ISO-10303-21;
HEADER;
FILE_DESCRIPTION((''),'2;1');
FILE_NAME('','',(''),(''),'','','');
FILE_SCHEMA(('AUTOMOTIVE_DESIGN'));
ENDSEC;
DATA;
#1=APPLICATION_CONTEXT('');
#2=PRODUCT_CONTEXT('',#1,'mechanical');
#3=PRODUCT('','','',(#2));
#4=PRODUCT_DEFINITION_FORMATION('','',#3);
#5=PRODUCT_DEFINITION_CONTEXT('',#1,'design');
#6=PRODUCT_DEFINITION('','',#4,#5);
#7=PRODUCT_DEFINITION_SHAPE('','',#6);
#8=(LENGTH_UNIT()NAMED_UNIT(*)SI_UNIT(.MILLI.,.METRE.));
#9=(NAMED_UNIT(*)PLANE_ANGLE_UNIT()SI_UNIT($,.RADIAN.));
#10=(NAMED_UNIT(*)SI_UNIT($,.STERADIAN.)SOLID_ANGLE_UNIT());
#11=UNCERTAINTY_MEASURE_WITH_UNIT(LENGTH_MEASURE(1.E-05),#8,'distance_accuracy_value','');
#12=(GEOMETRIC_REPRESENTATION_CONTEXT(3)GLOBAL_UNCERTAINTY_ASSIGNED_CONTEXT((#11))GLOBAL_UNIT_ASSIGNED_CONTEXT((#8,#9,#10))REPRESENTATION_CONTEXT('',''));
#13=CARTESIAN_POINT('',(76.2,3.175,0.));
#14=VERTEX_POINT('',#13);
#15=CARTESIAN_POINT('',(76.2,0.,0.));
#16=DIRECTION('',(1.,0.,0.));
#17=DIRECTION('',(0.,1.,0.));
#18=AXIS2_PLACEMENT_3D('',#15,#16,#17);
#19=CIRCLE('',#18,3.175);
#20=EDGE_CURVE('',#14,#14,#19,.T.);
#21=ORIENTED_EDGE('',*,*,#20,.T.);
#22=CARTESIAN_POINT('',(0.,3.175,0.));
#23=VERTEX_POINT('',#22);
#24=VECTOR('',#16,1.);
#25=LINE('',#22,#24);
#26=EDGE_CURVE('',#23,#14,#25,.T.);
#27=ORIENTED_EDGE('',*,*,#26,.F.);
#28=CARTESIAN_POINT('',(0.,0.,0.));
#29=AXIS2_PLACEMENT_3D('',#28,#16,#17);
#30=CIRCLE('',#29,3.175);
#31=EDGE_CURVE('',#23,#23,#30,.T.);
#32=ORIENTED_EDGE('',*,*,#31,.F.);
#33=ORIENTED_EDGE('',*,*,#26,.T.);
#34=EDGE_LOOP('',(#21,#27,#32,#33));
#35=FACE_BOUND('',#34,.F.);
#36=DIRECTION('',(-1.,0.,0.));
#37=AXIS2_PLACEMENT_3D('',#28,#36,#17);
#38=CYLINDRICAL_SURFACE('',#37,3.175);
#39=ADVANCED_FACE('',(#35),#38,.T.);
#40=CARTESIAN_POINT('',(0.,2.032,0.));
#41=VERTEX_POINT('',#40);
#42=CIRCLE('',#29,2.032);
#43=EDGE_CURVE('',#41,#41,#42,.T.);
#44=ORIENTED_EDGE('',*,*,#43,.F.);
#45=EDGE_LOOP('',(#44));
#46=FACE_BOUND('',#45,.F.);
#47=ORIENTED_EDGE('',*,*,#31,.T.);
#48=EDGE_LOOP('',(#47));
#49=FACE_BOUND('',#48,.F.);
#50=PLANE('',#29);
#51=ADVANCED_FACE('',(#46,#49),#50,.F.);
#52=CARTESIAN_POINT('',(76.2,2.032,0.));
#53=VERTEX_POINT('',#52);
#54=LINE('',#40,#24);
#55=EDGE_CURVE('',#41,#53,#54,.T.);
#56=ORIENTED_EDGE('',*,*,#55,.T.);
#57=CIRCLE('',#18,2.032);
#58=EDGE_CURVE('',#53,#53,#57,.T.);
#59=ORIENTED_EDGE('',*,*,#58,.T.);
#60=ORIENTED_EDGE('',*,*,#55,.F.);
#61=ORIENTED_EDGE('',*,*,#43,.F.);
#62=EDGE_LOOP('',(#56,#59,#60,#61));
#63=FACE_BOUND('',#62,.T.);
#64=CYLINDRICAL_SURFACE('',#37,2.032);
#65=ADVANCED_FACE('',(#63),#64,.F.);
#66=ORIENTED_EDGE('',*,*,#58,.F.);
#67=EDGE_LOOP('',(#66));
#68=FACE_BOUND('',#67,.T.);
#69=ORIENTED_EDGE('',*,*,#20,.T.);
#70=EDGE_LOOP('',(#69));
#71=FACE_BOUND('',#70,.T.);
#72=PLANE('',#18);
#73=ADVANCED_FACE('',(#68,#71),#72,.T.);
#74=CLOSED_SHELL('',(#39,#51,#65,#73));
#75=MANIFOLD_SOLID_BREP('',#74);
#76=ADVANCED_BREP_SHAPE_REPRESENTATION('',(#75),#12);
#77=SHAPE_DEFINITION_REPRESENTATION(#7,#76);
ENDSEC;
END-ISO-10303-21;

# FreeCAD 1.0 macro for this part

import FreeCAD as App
import Part
import Sketcher
Q = App.Units.Quantity

doc = App.newDocument("Part")
params = doc.addObject("Spreadsheet::Sheet", "Params")
for row, (alias, value) in enumerate([
    ("sketch1_diameter", "0.25 in"),
    ("sketch1_diameter2", "0.16 in"),
    ("pad1_length", "3 in"),
], start=1):
    params.set(f"A{row}", alias)
    params.set(f"B{row}", "=" + value)
    params.setAlias(f"B{row}", alias)

body = doc.addObject("PartDesign::Body", "Body")

# Sketch on YZ plane
sketch1 = body.newObject("Sketcher::SketchObject", "Sketch")
sketch1.AttachmentSupport = (doc.getObject("YZ_Plane"), [""])
sketch1.MapMode = "FlatFace"
sketch1.addGeometry(Part.Circle(App.Vector(0, 0, 0), App.Vector(0, 0, 1), 3.2), False)
sketch1.addGeometry(Part.Circle(App.Vector(0, 0, 0), App.Vector(0, 0, 1), 2), False)
sketch1.addConstraint(Sketcher.Constraint("Coincident", 0, 3, -1, 1))
sketch1.addConstraint(Sketcher.Constraint("Coincident", 1, 3, -1, 1))
sketch1.addConstraint(Sketcher.Constraint("Diameter", 0, Q("0.25 in")))
sketch1.addConstraint(Sketcher.Constraint("Diameter", 1, Q("0.16 in")))
sketch1.setExpression("Constraints[2]", "Params.sketch1_diameter")
sketch1.setExpression("Constraints[3]", "Params.sketch1_diameter2")
pad1 = body.newObject("PartDesign::Pad", "Pad")
pad1.Profile = sketch1
pad1.setExpression("Length", "Params.pad1_length")

doc.recompute()
